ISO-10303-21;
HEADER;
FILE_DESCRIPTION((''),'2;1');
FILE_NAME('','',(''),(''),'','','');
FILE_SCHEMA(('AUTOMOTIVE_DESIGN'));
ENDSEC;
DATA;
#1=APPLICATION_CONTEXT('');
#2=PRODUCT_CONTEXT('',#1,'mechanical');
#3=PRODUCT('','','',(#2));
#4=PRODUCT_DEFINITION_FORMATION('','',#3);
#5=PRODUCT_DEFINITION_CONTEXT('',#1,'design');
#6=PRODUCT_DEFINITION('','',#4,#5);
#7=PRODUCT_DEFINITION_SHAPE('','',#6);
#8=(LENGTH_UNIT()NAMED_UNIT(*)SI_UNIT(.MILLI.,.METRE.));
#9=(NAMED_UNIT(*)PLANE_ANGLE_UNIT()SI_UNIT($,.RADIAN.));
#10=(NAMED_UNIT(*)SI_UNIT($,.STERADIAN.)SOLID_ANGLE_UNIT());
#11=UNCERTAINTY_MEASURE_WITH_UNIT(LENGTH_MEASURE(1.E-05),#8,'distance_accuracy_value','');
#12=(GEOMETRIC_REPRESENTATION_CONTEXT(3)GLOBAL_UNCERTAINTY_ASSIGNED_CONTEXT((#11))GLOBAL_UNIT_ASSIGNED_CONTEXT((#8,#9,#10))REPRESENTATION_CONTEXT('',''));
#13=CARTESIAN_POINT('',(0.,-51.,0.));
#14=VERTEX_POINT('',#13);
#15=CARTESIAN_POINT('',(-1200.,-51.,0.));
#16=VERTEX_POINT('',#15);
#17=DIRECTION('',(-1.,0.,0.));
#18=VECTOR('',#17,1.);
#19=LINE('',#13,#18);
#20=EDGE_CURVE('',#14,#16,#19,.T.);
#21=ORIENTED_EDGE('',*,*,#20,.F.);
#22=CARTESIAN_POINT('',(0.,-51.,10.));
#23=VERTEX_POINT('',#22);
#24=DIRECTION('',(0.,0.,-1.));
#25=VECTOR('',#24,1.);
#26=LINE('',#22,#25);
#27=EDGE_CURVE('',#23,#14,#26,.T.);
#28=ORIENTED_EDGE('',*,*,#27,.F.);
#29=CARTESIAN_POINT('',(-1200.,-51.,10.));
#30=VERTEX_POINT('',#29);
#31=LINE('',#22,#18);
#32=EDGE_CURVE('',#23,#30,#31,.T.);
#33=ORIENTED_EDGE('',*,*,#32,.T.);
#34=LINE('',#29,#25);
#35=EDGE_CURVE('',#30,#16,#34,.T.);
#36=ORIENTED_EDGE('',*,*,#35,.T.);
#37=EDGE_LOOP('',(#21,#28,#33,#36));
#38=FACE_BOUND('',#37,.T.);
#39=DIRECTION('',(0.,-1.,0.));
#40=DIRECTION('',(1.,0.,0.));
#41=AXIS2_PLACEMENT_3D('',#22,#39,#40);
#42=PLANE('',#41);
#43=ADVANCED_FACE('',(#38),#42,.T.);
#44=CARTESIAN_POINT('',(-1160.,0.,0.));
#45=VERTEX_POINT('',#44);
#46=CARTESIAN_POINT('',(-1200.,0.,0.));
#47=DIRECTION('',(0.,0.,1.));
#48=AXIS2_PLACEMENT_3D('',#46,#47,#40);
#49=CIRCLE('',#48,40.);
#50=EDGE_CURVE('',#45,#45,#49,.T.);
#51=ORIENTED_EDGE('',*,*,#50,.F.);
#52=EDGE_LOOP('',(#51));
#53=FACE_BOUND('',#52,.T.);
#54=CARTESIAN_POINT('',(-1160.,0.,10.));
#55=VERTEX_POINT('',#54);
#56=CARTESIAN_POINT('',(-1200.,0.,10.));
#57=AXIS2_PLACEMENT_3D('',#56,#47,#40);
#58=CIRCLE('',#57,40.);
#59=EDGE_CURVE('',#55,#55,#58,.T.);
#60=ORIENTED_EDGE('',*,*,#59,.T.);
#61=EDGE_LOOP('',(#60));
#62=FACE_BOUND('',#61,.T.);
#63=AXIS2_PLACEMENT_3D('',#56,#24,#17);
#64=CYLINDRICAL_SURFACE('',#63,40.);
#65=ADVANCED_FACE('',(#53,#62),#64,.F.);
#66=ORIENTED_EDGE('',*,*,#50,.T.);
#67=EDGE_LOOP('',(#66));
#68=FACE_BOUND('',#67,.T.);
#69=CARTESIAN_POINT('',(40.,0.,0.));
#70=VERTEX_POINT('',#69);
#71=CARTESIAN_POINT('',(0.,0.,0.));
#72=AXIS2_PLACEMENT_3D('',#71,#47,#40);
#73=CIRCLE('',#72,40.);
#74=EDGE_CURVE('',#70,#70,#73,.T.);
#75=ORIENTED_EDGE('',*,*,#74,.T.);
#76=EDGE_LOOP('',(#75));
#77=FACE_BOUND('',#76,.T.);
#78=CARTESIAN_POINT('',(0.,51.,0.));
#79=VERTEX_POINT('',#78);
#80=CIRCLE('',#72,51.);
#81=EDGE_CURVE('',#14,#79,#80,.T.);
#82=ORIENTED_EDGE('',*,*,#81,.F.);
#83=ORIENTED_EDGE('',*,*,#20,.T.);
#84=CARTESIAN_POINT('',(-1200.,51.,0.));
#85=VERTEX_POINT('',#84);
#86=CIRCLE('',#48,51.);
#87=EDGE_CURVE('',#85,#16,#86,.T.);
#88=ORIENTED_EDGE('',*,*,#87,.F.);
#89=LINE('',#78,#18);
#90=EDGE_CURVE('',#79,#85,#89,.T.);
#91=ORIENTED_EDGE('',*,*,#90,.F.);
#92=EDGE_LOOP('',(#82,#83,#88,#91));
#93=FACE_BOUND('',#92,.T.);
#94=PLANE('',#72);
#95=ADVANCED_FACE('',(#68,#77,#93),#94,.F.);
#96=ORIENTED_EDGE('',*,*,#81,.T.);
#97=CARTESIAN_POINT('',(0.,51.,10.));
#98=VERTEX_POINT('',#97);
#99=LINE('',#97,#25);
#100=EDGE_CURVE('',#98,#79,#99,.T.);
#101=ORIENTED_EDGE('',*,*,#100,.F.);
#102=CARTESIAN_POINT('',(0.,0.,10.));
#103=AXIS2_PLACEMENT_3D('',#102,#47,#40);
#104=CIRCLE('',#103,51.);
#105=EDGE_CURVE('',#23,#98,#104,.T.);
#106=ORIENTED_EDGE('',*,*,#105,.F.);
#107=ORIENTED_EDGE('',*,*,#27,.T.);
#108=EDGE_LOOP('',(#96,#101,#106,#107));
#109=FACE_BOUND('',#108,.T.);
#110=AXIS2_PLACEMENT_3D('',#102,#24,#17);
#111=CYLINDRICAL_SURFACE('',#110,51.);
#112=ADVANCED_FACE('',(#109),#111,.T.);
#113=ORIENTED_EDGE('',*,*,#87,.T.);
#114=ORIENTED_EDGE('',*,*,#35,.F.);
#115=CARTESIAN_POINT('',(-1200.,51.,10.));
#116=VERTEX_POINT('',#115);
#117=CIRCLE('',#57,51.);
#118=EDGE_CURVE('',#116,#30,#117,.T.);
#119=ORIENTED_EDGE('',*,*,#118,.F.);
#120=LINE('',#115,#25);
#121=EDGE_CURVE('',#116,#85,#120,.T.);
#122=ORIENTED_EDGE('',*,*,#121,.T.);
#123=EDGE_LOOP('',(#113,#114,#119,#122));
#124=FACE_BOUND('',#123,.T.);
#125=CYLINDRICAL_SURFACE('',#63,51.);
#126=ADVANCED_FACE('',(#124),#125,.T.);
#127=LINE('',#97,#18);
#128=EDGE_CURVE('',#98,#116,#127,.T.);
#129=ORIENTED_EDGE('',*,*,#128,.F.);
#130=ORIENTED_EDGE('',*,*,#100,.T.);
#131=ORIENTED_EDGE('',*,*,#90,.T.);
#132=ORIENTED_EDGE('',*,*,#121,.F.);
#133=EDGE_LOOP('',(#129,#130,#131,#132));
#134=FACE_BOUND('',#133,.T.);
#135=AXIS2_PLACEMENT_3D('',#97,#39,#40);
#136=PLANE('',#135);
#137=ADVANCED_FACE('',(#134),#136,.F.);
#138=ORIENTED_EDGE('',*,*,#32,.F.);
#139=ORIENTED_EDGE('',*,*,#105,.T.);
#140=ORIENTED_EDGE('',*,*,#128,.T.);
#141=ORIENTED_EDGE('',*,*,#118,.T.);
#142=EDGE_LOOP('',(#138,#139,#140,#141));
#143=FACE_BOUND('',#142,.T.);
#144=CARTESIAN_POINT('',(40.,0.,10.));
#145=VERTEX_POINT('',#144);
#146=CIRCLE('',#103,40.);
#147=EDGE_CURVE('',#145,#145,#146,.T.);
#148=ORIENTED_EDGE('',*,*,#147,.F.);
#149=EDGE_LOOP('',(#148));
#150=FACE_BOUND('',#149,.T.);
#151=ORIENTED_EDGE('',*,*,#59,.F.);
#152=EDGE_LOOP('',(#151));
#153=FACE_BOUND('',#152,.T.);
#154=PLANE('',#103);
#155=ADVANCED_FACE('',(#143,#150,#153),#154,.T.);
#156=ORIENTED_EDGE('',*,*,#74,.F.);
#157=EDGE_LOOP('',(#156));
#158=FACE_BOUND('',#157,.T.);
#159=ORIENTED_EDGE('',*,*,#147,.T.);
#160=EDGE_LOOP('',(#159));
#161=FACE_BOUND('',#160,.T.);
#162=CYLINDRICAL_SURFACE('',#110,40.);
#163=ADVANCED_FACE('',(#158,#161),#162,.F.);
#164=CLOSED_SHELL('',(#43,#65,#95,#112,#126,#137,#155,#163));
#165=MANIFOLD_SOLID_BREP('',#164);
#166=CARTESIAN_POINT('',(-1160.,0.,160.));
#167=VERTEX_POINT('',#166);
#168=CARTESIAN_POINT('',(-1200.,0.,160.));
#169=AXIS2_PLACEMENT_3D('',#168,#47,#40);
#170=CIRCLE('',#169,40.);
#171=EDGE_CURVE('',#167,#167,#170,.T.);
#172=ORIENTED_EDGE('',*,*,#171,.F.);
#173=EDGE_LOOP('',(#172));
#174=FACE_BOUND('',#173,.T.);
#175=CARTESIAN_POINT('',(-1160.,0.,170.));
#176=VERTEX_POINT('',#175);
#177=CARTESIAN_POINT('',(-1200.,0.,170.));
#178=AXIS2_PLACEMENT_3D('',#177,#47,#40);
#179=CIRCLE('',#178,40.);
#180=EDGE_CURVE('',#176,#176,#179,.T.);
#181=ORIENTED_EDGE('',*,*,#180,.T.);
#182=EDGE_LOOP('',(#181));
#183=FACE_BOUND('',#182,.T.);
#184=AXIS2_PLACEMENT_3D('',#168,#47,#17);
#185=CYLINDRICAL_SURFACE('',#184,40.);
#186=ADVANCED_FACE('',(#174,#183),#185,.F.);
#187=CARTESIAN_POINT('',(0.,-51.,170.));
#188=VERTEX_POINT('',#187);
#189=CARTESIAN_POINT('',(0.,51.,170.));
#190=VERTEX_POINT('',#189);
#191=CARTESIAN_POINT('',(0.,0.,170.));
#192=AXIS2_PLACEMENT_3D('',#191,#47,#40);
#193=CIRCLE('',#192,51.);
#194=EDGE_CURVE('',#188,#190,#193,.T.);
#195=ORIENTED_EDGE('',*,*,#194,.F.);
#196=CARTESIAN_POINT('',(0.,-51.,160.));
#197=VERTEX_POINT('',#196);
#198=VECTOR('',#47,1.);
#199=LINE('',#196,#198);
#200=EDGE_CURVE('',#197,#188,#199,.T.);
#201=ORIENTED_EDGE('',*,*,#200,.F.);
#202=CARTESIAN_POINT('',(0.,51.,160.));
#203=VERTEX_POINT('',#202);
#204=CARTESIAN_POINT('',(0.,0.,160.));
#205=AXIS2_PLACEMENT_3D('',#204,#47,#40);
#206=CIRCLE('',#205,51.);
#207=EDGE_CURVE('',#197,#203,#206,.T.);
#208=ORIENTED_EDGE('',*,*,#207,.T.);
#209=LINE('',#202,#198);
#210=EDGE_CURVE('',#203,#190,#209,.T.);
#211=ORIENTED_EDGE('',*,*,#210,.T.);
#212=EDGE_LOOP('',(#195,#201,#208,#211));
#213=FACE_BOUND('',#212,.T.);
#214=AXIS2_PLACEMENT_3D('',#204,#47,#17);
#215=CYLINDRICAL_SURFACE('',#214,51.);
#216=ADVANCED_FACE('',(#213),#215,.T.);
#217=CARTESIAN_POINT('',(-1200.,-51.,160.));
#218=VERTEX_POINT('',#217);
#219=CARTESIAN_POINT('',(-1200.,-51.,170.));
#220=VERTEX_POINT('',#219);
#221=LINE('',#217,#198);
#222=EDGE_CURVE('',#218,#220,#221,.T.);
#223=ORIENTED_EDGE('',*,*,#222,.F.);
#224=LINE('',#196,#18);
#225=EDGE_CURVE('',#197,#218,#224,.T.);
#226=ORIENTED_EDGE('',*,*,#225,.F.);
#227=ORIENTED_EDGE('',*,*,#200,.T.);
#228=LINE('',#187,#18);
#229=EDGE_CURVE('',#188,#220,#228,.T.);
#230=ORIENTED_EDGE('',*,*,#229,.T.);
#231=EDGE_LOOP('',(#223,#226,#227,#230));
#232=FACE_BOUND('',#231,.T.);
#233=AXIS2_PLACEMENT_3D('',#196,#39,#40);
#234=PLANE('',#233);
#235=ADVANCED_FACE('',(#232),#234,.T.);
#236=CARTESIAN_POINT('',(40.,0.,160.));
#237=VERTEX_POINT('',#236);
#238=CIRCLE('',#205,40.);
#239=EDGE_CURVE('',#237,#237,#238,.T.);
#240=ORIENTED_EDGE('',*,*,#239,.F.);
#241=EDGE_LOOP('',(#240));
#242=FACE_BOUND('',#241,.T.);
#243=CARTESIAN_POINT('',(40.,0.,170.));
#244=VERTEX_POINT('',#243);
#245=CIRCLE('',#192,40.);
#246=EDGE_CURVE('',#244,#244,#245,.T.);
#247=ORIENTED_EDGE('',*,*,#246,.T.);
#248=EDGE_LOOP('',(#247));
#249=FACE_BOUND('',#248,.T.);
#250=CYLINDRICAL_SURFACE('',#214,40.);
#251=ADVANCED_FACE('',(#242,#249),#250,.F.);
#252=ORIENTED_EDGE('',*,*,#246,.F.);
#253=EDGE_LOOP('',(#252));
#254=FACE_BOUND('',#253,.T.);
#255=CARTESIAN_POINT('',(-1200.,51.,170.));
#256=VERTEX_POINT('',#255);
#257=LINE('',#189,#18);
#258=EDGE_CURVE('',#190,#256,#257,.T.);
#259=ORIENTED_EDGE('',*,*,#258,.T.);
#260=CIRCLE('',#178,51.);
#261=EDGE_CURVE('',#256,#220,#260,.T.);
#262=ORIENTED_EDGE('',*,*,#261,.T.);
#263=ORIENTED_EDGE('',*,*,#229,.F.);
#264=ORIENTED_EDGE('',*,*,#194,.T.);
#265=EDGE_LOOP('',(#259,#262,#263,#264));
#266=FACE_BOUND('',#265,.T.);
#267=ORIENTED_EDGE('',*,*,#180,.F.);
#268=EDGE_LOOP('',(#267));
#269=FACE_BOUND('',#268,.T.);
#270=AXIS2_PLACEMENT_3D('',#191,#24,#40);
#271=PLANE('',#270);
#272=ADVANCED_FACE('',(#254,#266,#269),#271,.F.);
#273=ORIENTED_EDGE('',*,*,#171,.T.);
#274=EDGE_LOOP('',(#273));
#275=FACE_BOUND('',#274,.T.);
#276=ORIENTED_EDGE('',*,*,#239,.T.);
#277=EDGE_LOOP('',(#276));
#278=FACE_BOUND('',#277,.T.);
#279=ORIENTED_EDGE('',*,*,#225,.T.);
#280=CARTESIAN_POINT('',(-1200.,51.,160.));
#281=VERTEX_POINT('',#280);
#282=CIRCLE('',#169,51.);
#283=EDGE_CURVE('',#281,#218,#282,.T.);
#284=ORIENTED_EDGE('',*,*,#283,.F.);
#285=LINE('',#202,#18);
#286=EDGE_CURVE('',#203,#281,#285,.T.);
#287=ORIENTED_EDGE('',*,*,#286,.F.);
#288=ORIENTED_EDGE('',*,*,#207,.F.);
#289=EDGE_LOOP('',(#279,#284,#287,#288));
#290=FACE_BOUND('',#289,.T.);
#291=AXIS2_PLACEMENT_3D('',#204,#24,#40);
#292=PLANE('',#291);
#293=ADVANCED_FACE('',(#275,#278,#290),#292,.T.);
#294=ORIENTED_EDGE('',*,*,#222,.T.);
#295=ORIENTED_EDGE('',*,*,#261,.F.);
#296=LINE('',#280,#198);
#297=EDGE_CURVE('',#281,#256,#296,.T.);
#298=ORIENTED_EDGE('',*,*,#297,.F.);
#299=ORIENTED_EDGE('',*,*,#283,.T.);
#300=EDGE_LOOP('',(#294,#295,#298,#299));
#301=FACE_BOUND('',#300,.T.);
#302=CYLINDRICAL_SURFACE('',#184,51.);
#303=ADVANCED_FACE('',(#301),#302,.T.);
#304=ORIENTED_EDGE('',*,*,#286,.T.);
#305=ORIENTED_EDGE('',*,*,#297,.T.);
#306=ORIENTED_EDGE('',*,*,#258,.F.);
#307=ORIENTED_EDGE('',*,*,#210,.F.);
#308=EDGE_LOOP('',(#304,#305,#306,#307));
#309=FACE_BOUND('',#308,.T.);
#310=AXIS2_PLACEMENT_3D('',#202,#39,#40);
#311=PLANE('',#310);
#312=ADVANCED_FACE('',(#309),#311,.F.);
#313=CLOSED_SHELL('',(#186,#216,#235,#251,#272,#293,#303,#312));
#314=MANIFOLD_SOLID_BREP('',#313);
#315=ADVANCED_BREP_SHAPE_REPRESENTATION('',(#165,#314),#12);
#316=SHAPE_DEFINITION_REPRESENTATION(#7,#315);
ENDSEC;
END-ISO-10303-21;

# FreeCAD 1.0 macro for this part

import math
import FreeCAD as App
import Part
import Sketcher
Q = App.Units.Quantity

doc = App.newDocument("Part")
body = doc.addObject("PartDesign::Body", "Body")

sketch1 = body.newObject("Sketcher::SketchObject", "Sketch")
sketch1.AttachmentSupport = (doc.getObject("XY_Plane"), [""])
sketch1.MapMode = "FlatFace"
sketch1.addGeometry([
    Part.LineSegment(App.Vector(-1200, -51, 0), App.Vector(0, -51, 0)),
    Part.ArcOfCircle(Part.Circle(App.Vector(0, 0, 0), App.Vector(0, 0, 1), 51), math.radians(-90), math.radians(90)),
    Part.LineSegment(App.Vector(0, 51, 0), App.Vector(-1200, 51, 0)),
    Part.ArcOfCircle(Part.Circle(App.Vector(-1200, 0, 0), App.Vector(0, 0, 1), 51), math.radians(90), math.radians(270)),
    Part.Circle(App.Vector(0, 0, 0), App.Vector(0, 0, 1), 40),
    Part.Circle(App.Vector(-1200, 0, 0), App.Vector(0, 0, 1), 40),
], False)
sketch1.addConstraint([
    Sketcher.Constraint("Tangent", 0, 2, 1, 1),
    Sketcher.Constraint("Tangent", 1, 2, 2, 1),
    Sketcher.Constraint("Tangent", 2, 2, 3, 1),
    Sketcher.Constraint("Tangent", 3, 2, 0, 1),
    Sketcher.Constraint("Horizontal", 0),
    Sketcher.Constraint("Horizontal", 2),
    Sketcher.Constraint("Coincident", 1, 3, -1, 1),
    Sketcher.Constraint("Coincident", 4, 3, -1, 1),
    Sketcher.Constraint("Coincident", 5, 3, 3, 3),
    Sketcher.Constraint("Equal", 4, 5),
    Sketcher.Constraint("Diameter", 4, Q("80 mm")),
    Sketcher.Constraint("Radius", 1, Q("51 mm")),
    Sketcher.Constraint("DistanceX", 0, 1, 0, 2, Q("1200 mm")),
])
pad1 = body.newObject("PartDesign::Pad", "Pad")
pad1.Profile = sketch1
pad1.Length = 10
body2 = doc.addObject("PartDesign::Body", "Body001")
doc.recompute()

mirroring = doc.addObject("Part::Mirroring", "Mirroring")
mirroring.Source = body
mirroring.Base = App.Vector(0, 0, 85)
mirroring.Normal = App.Vector(0, 0, 1)
body2.BaseFeature = mirroring
doc.recompute()
mirroring.Visibility = False

doc.recompute()
